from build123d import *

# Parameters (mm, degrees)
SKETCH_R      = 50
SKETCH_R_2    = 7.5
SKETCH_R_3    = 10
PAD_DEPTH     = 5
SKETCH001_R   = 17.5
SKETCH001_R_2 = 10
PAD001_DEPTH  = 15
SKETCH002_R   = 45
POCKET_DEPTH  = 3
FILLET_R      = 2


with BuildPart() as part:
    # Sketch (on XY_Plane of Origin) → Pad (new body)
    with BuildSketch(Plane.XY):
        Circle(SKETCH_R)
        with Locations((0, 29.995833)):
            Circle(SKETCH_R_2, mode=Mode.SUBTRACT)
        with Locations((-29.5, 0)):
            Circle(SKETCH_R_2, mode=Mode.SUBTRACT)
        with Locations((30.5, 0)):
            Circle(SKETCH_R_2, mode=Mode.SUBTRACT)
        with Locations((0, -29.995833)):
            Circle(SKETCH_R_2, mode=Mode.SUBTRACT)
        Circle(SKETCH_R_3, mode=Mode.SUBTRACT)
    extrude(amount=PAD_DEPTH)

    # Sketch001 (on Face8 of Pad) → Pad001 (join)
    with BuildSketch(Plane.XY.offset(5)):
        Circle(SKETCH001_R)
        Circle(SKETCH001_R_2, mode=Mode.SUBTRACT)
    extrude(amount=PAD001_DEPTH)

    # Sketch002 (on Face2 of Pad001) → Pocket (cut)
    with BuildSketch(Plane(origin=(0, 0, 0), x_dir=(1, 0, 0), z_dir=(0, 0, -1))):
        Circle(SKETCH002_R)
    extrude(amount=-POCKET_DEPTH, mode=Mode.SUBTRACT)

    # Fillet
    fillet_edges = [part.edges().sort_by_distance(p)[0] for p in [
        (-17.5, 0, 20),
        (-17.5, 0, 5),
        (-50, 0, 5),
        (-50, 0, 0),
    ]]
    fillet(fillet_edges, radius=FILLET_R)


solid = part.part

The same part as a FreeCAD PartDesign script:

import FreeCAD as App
import Part
import Sketcher
from FreeCAD import Vector
Q = App.Units.Quantity


def edges_at(feature, points):
    """Names of the edges that pass closest to the given points."""
    edges = feature.Shape.Edges
    near = lambda p: min(range(len(edges)), key=lambda i: edges[i].distToShape(Part.Vertex(*p))[0])
    return sorted({f"Edge{near(p) + 1}" for p in points})

doc = App.newDocument("Part")
body = doc.addObject("PartDesign::Body", "Body")

sketch1 = doc.addObject("Sketcher::SketchObject", "Sketch")
body.addObject(sketch1)
sketch1.AttachmentSupport = (doc.XY_Plane, [""])
sketch1.MapMode = "FlatFace"
sketch1.addGeometry([
    Part.Circle(Vector(0, 0, 0), Vector(0, 0, 1), 50),
    Part.Circle(Vector(0, -29.995833, 0), Vector(0, 0, 1), 7.5),
    Part.Circle(Vector(-29.5, 0, 0), Vector(0, 0, 1), 7.5),
    Part.Circle(Vector(0, 0, 0), Vector(0, 0, 1), 10),
    Part.Circle(Vector(0, 29.995833, 0), Vector(0, 0, 1), 7.5),
    Part.Circle(Vector(30.5, 0, 0), Vector(0, 0, 1), 7.5),
], False)
sketch1.addConstraint([
    Sketcher.Constraint("Coincident", 0, 3, -1, 1),
    Sketcher.Constraint("Coincident", 3, 3, -1, 1),
    Sketcher.Constraint("Equal", 1, 2),
    Sketcher.Constraint("Equal", 2, 4),
    Sketcher.Constraint("Equal", 4, 5),
    Sketcher.Constraint("Symmetric", 1, 3, 4, 3, -1, 1),
    Sketcher.Constraint("PointOnObject", 1, 3, -2),
    Sketcher.Constraint("PointOnObject", 2, 3, -1),
    Sketcher.Constraint("PointOnObject", 5, 3, -1),
    Sketcher.Constraint("Diameter", 0, Q("100 mm")),
    Sketcher.Constraint("Diameter", 1, Q("15 mm")),
    Sketcher.Constraint("Diameter", 3, Q("20 mm")),
    Sketcher.Constraint("DistanceX", 2, 3, 5, 3, Q("60 mm")),
    Sketcher.Constraint("DistanceX", 2, 3, -1, 1, Q("29.5 mm")),
    Sketcher.Constraint("DistanceY", 1, 3, -1, 1, Q("29.995833 mm")),
])
pad1 = doc.addObject("PartDesign::Pad", "Pad")
body.addObject(pad1)
pad1.Profile = sketch1
pad1.Length = 5

sketch2 = doc.addObject("Sketcher::SketchObject", "Sketch001")
body.addObject(sketch2)
sketch2.AttachmentSupport = (doc.XY_Plane, [""])
sketch2.MapMode = "FlatFace"
sketch2.AttachmentOffset = App.Placement(Vector(0, 0, 5), App.Rotation())
sketch2.addGeometry([
    Part.Circle(Vector(0, 0, 0), Vector(0, 0, 1), 17.5),
    Part.Circle(Vector(0, 0, 0), Vector(0, 0, 1), 10),
], False)
sketch2.addConstraint([
    Sketcher.Constraint("Coincident", 0, 3, -1, 1),
    Sketcher.Constraint("Coincident", 1, 3, -1, 1),
    Sketcher.Constraint("Diameter", 0, Q("35 mm")),
    Sketcher.Constraint("Diameter", 1, Q("20 mm")),
])
pad2 = doc.addObject("PartDesign::Pad", "Pad001")
body.addObject(pad2)
pad2.Profile = sketch2
pad2.Length = 15

sketch3 = doc.addObject("Sketcher::SketchObject", "Sketch002")
body.addObject(sketch3)
sketch3.AttachmentSupport = (doc.XY_Plane, [""])
sketch3.MapMode = "FlatFace"
sketch3.addGeometry(Part.Circle(Vector(0, 0, 0), Vector(0, 0, 1), 45), False)
sketch3.addConstraint([
    Sketcher.Constraint("Coincident", 0, 3, -1, 1),
    Sketcher.Constraint("Diameter", 0, Q("90 mm")),
])
pocket1 = doc.addObject("PartDesign::Pocket", "Pocket")
body.addObject(pocket1)
pocket1.Profile = sketch3
pocket1.Length = 3
pocket1.Reversed = True
doc.recompute()

fillet = doc.addObject("PartDesign::Fillet", "Fillet")
body.addObject(fillet)
fillet.Base = (pocket1, edges_at(pocket1, [
    (-17.5, 0, 20),
    (-17.5, 0, 5),
    (-50, 0, 5),
    (-50, 0, 0),
]))
fillet.Radius = 2

doc.recompute()
